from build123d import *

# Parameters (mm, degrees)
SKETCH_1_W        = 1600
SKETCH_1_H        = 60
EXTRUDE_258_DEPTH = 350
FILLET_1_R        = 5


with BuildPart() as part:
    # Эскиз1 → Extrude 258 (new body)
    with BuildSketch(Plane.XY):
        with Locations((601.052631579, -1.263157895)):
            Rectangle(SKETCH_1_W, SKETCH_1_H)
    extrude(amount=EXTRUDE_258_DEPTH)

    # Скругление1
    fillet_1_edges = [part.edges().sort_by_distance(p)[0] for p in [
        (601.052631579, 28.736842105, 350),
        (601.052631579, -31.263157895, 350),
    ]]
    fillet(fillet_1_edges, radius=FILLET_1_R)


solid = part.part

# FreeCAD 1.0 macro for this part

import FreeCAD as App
import Part
import Sketcher
Q = App.Units.Quantity


def edges_at(feature, points):
    """Names of the edges that pass closest to the given points."""
    edges = feature.Shape.Edges
    near = lambda p: min(range(len(edges)), key=lambda i: edges[i].distToShape(Part.Vertex(*p))[0])
    return sorted({f"Edge{near(p) + 1}" for p in points})


def add_polygon(sketch, points):
    """Adds a closed chain of lines whose ends are joined by coincident constraints."""
    first, n = sketch.GeometryCount, len(points)
    for a, b in zip(points, points[1:] + points[:1]):
        sketch.addGeometry(Part.LineSegment(App.Vector(*a, 0), App.Vector(*b, 0)), False)
    for i in range(n):
        sketch.addConstraint(Sketcher.Constraint("Coincident", first + i, 2, first + (i + 1) % n, 1))

doc = App.newDocument("Part")
params = doc.addObject("Spreadsheet::Sheet", "Params")
for row, (alias, value) in enumerate([
    ("sketch1_width", "1600 mm"),
    ("sketch1_height", "60 mm"),
    ("pad1_length", "350 mm"),
    ("fillet_radius", "5 mm"),
], start=1):
    params.set(f"A{row}", alias)
    params.set(f"B{row}", "=" + value)
    params.setAlias(f"B{row}", alias)

body = doc.addObject("PartDesign::Body", "Body")

# Sketch on XY plane
sketch1 = doc.addObject("Sketcher::SketchObject", "Sketch")
body.addObject(sketch1)
sketch1.AttachmentSupport = (doc.XY_Plane, [""])
sketch1.MapMode = "FlatFace"
add_polygon(sketch1, [(-198.947368, 28.736842), (-198.947368, -31.263158), (1401.052632, -31.263158), (1401.052632, 28.736842)])  # lines 0-3
sketch1.addConstraint([
    Sketcher.Constraint("Vertical", 0),
    Sketcher.Constraint("Horizontal", 1),
    Sketcher.Constraint("Vertical", 2),
    Sketcher.Constraint("Horizontal", 3),
    Sketcher.Constraint("DistanceX", 1, 1, 1, 2, Q("1600 mm")),
    Sketcher.Constraint("DistanceY", 0, 2, 0, 1, Q("60 mm")),
    Sketcher.Constraint("DistanceX", 0, 2, -1, 1, Q("198.947368 mm")),
    Sketcher.Constraint("DistanceY", 0, 2, -1, 1, Q("31.263158 mm")),
])
sketch1.setExpression("Constraints[8]", "Params.sketch1_width")
sketch1.setExpression("Constraints[9]", "Params.sketch1_height")
pad1 = doc.addObject("PartDesign::Pad", "Pad")
body.addObject(pad1)
pad1.Profile = sketch1
pad1.setExpression("Length", "Params.pad1_length")
doc.recompute()

fillet = doc.addObject("PartDesign::Fillet", "Fillet")
body.addObject(fillet)
fillet.Base = (pad1, edges_at(pad1, [(601.053, 28.737, 350), (601.053, -31.263, 350)]))
fillet.setExpression("Radius", "Params.fillet_radius")

doc.recompute()
